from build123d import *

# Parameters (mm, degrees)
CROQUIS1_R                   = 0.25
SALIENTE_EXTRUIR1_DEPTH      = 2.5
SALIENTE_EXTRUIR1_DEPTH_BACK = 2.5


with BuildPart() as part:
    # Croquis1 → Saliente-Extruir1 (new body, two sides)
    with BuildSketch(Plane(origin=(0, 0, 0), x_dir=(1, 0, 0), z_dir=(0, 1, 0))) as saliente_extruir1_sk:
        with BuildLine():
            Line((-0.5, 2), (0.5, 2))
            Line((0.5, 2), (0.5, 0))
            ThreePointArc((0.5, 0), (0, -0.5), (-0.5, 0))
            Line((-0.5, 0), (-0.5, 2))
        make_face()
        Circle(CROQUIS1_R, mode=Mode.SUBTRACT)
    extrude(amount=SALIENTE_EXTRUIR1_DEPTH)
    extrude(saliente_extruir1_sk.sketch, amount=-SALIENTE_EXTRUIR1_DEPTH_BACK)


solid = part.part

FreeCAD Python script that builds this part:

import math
import FreeCAD as App
import Part
import Sketcher
Q = App.Units.Quantity

doc = App.newDocument("Part")
body = doc.addObject("PartDesign::Body", "Body")

sketch1 = body.newObject("Sketcher::SketchObject", "Sketch")
sketch1.AttachmentSupport = (doc.getObject("XZ_Plane"), [""])
sketch1.MapMode = "FlatFace"
sketch1.addGeometry(Part.LineSegment(App.Vector(0.5, -2, 0), App.Vector(-0.5, -2, 0)), False)
sketch1.addGeometry(Part.LineSegment(App.Vector(-0.5, -2, 0), App.Vector(-0.5, 0, 0)), False)
sketch1.addGeometry(Part.ArcOfCircle(Part.Circle(App.Vector(0, 0, 0), App.Vector(0, 0, 1), 0.5), math.radians(0), math.radians(180)), False)
sketch1.addGeometry(Part.LineSegment(App.Vector(0.5, 0, 0), App.Vector(0.5, -2, 0)), False)
sketch1.addGeometry(Part.Circle(App.Vector(0, 0, 0), App.Vector(0, 0, 1), 0.25), False)
sketch1.addConstraint(Sketcher.Constraint("Coincident", 0, 2, 1, 1))
sketch1.addConstraint(Sketcher.Constraint("Tangent", 1, 2, 2, 2))
sketch1.addConstraint(Sketcher.Constraint("Tangent", 2, 1, 3, 1))
sketch1.addConstraint(Sketcher.Constraint("Coincident", 3, 2, 0, 1))
sketch1.addConstraint(Sketcher.Constraint("Horizontal", 0))
sketch1.addConstraint(Sketcher.Constraint("Vertical", 1))
sketch1.addConstraint(Sketcher.Constraint("Vertical", 3))
sketch1.addConstraint(Sketcher.Constraint("Coincident", 2, 3, -1, 1))
sketch1.addConstraint(Sketcher.Constraint("Coincident", 4, 3, -1, 1))
sketch1.addConstraint(Sketcher.Constraint("Diameter", 4, Q("0.5 mm")))
sketch1.addConstraint(Sketcher.Constraint("Radius", 2, Q("0.5 mm")))
sketch1.addConstraint(Sketcher.Constraint("DistanceY", 1, 1, 1, 2, Q("2 mm")))
pad1 = body.newObject("PartDesign::Pad", "Pad")
pad1.Profile = sketch1
pad1.Type = "TwoLengths"
pad1.Length = 2.5
pad1.Length2 = 2.5
pad1.Reversed = True

doc.recompute()
